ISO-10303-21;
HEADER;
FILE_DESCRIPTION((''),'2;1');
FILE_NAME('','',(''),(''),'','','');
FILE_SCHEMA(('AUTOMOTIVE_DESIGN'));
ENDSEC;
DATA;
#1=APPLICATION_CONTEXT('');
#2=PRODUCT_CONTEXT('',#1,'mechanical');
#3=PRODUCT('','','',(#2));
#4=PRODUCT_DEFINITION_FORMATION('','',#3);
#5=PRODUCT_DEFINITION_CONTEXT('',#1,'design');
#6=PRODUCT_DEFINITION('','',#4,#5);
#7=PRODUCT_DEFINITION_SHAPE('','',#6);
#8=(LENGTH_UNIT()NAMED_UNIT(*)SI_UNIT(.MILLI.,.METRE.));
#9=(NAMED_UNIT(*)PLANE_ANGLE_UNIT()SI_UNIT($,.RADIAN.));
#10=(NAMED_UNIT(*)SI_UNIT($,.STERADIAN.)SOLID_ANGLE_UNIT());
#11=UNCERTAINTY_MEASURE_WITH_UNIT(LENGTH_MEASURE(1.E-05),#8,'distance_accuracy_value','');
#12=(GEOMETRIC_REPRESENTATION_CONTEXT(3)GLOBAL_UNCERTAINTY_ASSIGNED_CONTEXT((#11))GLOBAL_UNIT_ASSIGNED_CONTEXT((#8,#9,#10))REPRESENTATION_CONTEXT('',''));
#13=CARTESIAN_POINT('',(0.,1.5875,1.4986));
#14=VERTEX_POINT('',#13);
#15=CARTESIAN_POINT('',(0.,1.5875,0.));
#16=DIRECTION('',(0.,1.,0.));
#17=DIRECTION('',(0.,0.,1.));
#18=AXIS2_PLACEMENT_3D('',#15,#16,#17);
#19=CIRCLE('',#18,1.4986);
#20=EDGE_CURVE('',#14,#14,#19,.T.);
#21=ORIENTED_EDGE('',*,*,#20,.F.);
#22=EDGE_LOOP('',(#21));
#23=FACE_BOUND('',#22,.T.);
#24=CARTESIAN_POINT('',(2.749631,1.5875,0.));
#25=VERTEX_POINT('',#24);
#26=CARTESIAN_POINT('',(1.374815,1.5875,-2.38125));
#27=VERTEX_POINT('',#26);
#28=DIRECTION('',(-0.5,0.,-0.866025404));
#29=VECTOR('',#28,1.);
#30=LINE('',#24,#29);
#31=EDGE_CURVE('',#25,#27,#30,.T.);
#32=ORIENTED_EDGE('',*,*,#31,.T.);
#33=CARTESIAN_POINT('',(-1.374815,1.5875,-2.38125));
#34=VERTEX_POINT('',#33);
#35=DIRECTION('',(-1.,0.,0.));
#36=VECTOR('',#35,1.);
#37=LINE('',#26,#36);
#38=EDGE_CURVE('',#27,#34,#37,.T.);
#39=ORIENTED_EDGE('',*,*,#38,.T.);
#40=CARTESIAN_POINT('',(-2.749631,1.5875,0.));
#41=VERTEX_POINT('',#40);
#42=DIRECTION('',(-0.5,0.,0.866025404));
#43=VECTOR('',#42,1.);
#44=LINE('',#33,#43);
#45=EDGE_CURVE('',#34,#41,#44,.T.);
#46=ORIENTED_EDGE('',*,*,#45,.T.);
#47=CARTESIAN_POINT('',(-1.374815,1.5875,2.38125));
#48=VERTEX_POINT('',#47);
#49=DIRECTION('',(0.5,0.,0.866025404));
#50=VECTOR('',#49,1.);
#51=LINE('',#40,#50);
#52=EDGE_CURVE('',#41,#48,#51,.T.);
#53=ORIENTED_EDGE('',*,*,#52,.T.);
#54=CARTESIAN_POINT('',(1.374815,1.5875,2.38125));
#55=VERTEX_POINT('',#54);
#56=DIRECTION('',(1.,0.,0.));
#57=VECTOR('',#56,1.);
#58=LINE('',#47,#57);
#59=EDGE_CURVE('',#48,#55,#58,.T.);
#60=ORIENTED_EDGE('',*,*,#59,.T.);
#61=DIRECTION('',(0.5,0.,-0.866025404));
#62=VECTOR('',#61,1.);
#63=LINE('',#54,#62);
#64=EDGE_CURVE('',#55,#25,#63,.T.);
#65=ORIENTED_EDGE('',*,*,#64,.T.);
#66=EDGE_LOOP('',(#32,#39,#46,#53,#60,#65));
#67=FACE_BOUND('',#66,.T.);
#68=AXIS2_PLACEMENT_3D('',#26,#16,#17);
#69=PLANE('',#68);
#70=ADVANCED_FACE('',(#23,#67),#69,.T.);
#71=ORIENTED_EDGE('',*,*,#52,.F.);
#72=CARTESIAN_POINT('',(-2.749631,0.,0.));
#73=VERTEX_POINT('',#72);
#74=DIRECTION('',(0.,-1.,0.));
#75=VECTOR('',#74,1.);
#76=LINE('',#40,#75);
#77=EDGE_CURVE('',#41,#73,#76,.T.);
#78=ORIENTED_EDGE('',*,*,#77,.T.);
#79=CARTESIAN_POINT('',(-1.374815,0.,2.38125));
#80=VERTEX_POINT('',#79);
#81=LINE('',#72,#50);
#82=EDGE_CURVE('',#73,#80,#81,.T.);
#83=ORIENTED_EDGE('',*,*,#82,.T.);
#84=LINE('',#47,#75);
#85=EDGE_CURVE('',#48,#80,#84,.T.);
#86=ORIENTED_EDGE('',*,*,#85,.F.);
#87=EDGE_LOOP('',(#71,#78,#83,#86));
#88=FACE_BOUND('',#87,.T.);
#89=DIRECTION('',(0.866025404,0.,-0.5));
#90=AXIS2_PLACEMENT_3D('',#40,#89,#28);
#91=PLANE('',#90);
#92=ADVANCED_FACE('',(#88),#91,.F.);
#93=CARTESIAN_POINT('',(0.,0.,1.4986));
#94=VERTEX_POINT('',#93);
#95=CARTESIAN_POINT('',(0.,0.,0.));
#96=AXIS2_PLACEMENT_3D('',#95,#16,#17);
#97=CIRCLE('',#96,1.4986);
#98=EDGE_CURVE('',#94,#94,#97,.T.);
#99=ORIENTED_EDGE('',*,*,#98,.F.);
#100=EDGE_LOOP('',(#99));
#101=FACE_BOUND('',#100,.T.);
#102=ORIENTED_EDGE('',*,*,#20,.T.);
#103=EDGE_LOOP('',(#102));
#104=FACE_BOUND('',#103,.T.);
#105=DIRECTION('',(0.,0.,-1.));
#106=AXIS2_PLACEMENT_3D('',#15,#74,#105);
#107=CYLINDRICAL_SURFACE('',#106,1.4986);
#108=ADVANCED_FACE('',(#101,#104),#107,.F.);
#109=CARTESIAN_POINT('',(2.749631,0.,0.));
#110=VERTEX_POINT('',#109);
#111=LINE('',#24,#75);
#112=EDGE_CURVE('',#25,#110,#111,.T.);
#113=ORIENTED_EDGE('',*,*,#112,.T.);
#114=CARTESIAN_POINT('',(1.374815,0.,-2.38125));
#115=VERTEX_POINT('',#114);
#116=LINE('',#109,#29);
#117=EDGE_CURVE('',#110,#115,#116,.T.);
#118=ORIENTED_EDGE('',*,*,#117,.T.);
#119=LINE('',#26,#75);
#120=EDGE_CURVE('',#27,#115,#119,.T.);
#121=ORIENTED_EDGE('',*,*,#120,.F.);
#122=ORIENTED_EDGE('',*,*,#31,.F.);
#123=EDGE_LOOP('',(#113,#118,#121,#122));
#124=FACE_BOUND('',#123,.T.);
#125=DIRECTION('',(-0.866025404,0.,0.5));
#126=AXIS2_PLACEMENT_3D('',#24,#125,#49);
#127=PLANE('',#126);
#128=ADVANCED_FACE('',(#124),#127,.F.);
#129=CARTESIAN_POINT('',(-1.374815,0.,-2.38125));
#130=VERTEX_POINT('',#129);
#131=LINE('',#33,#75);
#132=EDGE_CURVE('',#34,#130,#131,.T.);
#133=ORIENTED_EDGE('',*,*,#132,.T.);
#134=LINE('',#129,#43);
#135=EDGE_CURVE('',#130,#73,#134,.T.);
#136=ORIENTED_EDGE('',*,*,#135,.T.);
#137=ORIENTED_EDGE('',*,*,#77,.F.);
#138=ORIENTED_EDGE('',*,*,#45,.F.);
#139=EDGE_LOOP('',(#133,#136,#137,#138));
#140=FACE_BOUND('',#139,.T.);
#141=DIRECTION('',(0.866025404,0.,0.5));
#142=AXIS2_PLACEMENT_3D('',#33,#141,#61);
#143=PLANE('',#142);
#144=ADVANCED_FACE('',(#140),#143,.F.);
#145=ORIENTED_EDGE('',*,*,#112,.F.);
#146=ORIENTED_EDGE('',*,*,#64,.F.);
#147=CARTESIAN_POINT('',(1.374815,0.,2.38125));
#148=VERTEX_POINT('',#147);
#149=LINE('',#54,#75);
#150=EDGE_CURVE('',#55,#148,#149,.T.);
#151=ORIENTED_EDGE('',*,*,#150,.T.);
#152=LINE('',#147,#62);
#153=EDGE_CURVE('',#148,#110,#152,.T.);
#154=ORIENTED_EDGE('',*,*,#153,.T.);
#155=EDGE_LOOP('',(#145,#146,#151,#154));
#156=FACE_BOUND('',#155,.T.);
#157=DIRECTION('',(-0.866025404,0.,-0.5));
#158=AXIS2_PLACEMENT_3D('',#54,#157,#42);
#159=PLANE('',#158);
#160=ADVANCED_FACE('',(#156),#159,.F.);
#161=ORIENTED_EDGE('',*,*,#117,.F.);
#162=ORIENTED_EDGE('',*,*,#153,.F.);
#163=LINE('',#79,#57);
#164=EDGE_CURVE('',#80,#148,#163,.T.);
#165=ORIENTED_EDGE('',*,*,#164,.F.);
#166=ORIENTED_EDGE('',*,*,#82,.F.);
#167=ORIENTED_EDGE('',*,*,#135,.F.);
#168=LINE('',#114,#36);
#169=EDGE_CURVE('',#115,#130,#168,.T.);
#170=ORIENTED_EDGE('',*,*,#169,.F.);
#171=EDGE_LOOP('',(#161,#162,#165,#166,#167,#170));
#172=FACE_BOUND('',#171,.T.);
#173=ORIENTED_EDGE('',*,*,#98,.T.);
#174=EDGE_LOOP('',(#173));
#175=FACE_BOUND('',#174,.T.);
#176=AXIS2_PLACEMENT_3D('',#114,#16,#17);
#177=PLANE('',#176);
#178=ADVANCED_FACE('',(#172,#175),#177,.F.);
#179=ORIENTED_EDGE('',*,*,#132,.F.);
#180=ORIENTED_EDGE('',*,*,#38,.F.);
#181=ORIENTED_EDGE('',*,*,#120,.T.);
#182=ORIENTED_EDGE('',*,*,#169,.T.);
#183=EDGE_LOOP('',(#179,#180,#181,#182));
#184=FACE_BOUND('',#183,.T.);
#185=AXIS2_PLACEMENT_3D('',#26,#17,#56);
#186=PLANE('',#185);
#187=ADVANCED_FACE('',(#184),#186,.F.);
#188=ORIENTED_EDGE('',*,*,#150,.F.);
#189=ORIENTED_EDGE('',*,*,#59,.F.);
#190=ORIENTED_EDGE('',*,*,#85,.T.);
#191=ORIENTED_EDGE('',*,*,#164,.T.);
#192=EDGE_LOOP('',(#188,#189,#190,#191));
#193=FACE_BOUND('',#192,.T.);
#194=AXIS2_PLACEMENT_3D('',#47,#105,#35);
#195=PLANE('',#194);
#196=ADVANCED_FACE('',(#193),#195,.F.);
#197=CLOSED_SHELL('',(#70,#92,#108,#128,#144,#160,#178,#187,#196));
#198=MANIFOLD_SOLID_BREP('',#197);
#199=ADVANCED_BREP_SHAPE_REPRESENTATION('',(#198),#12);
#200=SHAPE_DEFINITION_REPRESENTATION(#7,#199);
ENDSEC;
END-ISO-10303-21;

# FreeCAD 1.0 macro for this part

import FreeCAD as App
import Part
import Sketcher
Q = App.Units.Quantity

doc = App.newDocument("Part")
params = doc.addObject("Spreadsheet::Sheet", "Params")
for row, (alias, value) in enumerate([
    ("sketch1_diameter", "0.118 in"),
    ("pad1_length", "0.0625 in"),
], start=1):
    params.set(f"A{row}", alias)
    params.set(f"B{row}", "=" + value)
    params.setAlias(f"B{row}", alias)

body = doc.addObject("PartDesign::Body", "Body")

# Sketch on XZ plane
sketch1 = body.newObject("Sketcher::SketchObject", "Sketch")
sketch1.AttachmentSupport = (doc.getObject("XZ_Plane"), [""])
sketch1.MapMode = "FlatFace"
sketch1.addGeometry([
    Part.LineSegment(App.Vector(1.374815, -2.38125, 0), App.Vector(-1.374815, -2.38125, 0)),  # 0
    Part.LineSegment(App.Vector(-1.374815, -2.38125, 0), App.Vector(-2.749631, 0, 0)),  # 1
    Part.LineSegment(App.Vector(-2.749631, 0, 0), App.Vector(-1.374815, 2.38125, 0)),  # 2
    Part.LineSegment(App.Vector(-1.374815, 2.38125, 0), App.Vector(1.374815, 2.38125, 0)),  # 3
    Part.LineSegment(App.Vector(1.374815, 2.38125, 0), App.Vector(2.749631, 0, 0)),  # 4
    Part.LineSegment(App.Vector(2.749631, 0, 0), App.Vector(1.374815, -2.38125, 0)),  # 5
    Part.Circle(App.Vector(0, 0, 0), App.Vector(0, 0, 1), 1.4986),  # 6
], False)
sketch1.addConstraint([
    Sketcher.Constraint("Coincident", 0, 2, 1, 1),
    Sketcher.Constraint("Coincident", 1, 2, 2, 1),
    Sketcher.Constraint("Coincident", 2, 2, 3, 1),
    Sketcher.Constraint("Coincident", 3, 2, 4, 1),
    Sketcher.Constraint("Coincident", 4, 2, 5, 1),
    Sketcher.Constraint("Coincident", 5, 2, 0, 1),
    Sketcher.Constraint("Horizontal", 0),
    Sketcher.Constraint("Horizontal", 3),
    Sketcher.Constraint("Coincident", 6, 3, -1, 1),
    Sketcher.Constraint("Symmetric", 0, 2, 3, 2, -1, 1),
    Sketcher.Constraint("Symmetric", 1, 2, 4, 2, -1, 1),
    Sketcher.Constraint("PointOnObject", 1, 2, -1),
    Sketcher.Constraint("Parallel", 2, 5),
    Sketcher.Constraint("Vertical", 0, 2, 2, 2),
    Sketcher.Constraint("Diameter", 6, Q("0.118 in")),
    Sketcher.Constraint("Angle", 1, Q("120 deg")),
    Sketcher.Constraint("DistanceY", 0, 2, -1, 1, Q("0.09375 in")),
    Sketcher.Constraint("DistanceX", 0, 2, 0, 1, Q("2.749631 mm")),
])
sketch1.setExpression("Constraints[14]", "Params.sketch1_diameter")
pad1 = body.newObject("PartDesign::Pad", "Pad")
pad1.Profile = sketch1
pad1.setExpression("Length", "Params.pad1_length")
pad1.Reversed = True

doc.recompute()
